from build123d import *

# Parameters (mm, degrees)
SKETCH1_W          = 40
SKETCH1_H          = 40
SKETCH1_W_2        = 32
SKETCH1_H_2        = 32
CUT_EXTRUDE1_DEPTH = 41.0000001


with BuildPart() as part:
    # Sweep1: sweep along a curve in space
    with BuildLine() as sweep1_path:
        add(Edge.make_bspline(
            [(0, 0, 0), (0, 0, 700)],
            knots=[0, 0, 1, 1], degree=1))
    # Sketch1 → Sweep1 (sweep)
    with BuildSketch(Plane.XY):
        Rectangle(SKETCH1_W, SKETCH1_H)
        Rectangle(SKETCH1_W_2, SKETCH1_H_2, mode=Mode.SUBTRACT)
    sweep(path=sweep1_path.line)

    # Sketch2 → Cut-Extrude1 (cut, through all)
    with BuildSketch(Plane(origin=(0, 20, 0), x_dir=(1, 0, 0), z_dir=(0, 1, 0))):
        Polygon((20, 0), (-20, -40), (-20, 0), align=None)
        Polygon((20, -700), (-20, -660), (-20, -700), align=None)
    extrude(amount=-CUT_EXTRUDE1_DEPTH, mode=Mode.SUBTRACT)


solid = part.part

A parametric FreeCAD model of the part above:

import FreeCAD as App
import Part
import Sketcher

V = App.Vector
Q = App.Units.Quantity


def add_polygon(sketch, points):
    """Adds a closed chain of lines whose ends are joined by coincident constraints."""
    first, n = sketch.GeometryCount, len(points)
    for a, b in zip(points, points[1:] + points[:1]):
        sketch.addGeometry(Part.LineSegment(App.Vector(*a, 0), App.Vector(*b, 0)), False)
    for i in range(n):
        sketch.addConstraint(Sketcher.Constraint("Coincident", first + i, 2, first + (i + 1) % n, 1))

doc = App.newDocument("Part")
body = doc.addObject("PartDesign::Body", "Body")

sketch1 = doc.addObject("Sketcher::SketchObject", "Sketch")
body.addObject(sketch1)
sketch1.AttachmentSupport = (doc.XY_Plane, [""])
sketch1.MapMode = "FlatFace"
add_polygon(sketch1, [(-20, 20), (-20, -20), (20, -20), (20, 20)])
add_polygon(sketch1, [(16, -16), (-16, -16), (-16, 16), (16, 16)])
sketch1.addConstraint([
    Sketcher.Constraint("Vertical", 0),
    Sketcher.Constraint("Horizontal", 1),
    Sketcher.Constraint("Vertical", 2),
    Sketcher.Constraint("Horizontal", 3),
    Sketcher.Constraint("Horizontal", 4),
    Sketcher.Constraint("Vertical", 5),
    Sketcher.Constraint("Horizontal", 6),
    Sketcher.Constraint("Vertical", 7),
    Sketcher.Constraint("Symmetric", 0, 2, 2, 2, -1, 1),
    Sketcher.Constraint("Symmetric", 4, 2, 6, 2, -1, 1),
    Sketcher.Constraint("Equal", 3, 0),
    Sketcher.Constraint("Equal", 6, 5),
    Sketcher.Constraint("DistanceX", 1, 1, 1, 2, Q("40 mm")),
    Sketcher.Constraint("DistanceX", 4, 2, 4, 1, Q("32 mm")),
])

sketch2 = doc.addObject("Sketcher::SketchObject", "Sketch001")
body.addObject(sketch2)
sketch2.AttachmentSupport = (doc.XZ_Plane, [""])
sketch2.MapMode = "FlatFace"
sketch2.addGeometry(Part.BSplineCurve([V(0, 0, 0), V(0, 700, 0)], [2, 2], [0, 1], False, 1, [1, 1], False), False)
sketch2.addConstraint(Sketcher.Constraint("Block", 0))
doc.recompute()

additivepipe = doc.addObject("PartDesign::AdditivePipe", "AdditivePipe")
body.addObject(additivepipe)
additivepipe.Profile = sketch1
additivepipe.Spine = (sketch2, ["Edge1"])

sketch3 = doc.addObject("Sketcher::SketchObject", "Sketch002")
body.addObject(sketch3)
sketch3.AttachmentSupport = (doc.XZ_Plane, [""])
sketch3.MapMode = "FlatFace"
sketch3.AttachmentOffset = App.Placement(V(0, 0, -20), App.Rotation())
add_polygon(sketch3, [(-20, 40), (20, 0), (-20, 0)])
add_polygon(sketch3, [(20, 700), (-20, 660), (-20, 700)])
sketch3.addConstraint([
    Sketcher.Constraint("Horizontal", 1),
    Sketcher.Constraint("Vertical", 2),
    Sketcher.Constraint("Vertical", 4),
    Sketcher.Constraint("Horizontal", 5),
    Sketcher.Constraint("Symmetric", 0, 2, 1, 2, -1, 1),
    Sketcher.Constraint("Perpendicular", 0, 3),
    Sketcher.Constraint("Vertical", 2, 2, 3, 2),
    Sketcher.Constraint("Vertical", 0, 2, 5, 2),
    Sketcher.Constraint("Equal", 5, 2),
    Sketcher.Constraint("DistanceX", 1, 2, 1, 1, Q("40 mm")),
    Sketcher.Constraint("DistanceY", -1, 1, 3, 2, Q("660 mm")),
])
pocket1 = doc.addObject("PartDesign::Pocket", "Pocket")
body.addObject(pocket1)
pocket1.Profile = sketch3
pocket1.Type = "ThroughAll"
pocket1.Reversed = True

doc.recompute()
